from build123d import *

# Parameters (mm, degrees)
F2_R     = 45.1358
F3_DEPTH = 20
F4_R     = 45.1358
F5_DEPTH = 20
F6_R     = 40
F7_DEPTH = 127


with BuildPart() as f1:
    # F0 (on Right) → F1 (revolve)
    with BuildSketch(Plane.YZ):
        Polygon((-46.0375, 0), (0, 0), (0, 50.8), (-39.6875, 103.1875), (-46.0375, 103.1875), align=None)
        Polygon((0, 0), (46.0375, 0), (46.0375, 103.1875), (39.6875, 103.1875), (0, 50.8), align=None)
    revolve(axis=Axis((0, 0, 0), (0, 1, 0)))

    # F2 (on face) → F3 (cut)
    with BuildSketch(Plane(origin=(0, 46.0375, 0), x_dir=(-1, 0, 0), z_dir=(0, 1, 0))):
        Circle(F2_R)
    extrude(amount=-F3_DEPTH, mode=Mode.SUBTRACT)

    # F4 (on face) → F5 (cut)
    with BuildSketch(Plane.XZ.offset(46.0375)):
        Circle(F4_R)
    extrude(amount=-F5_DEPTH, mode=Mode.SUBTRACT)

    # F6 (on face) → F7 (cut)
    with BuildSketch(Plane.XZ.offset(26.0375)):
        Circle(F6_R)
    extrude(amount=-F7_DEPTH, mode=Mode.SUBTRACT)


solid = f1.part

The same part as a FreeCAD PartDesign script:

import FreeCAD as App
import Part
import Sketcher
Q = App.Units.Quantity


def add_polygon(sketch, points):
    """Adds a closed chain of lines whose ends are joined by coincident constraints."""
    first, n = sketch.GeometryCount, len(points)
    for a, b in zip(points, points[1:] + points[:1]):
        sketch.addGeometry(Part.LineSegment(App.Vector(*a, 0), App.Vector(*b, 0)), False)
    for i in range(n):
        sketch.addConstraint(Sketcher.Constraint("Coincident", first + i, 2, first + (i + 1) % n, 1))

doc = App.newDocument("Part")
body = doc.addObject("PartDesign::Body", "Body")

sketch1 = doc.addObject("Sketcher::SketchObject", "Sketch")
body.addObject(sketch1)
sketch1.AttachmentSupport = (doc.YZ_Plane, [""])
sketch1.MapMode = "FlatFace"
add_polygon(sketch1, [(-46, 0), (46, 0), (46, 103), (40, 103), (0, 51), (-40, 103), (-46, 103)])
sketch1.addConstraint([
    Sketcher.Constraint("Horizontal", 0),
    Sketcher.Constraint("Vertical", 1),
    Sketcher.Constraint("Horizontal", 2),
    Sketcher.Constraint("Horizontal", 5),
    Sketcher.Constraint("Vertical", 6),
    Sketcher.Constraint("Symmetric", 0, 2, 6, 2, -1, 1),
    Sketcher.Constraint("Symmetric", 2, 2, 4, 2, -2),
    Sketcher.Constraint("PointOnObject", 3, 2, -2),
    Sketcher.Constraint("DistanceY", -1, 1, 3, 2, Q("2 in")),
    Sketcher.Constraint("DistanceX", 2, 2, 2, 1, Q("0.25 in")),
    Sketcher.Constraint("DistanceX", 0, 1, 0, 2, Q("3.625 in")),
    Sketcher.Constraint("DistanceY", 1, 1, 1, 2, Q("4.0625 in")),
])
revolution = doc.addObject("PartDesign::Revolution", "Revolution")
body.addObject(revolution)
revolution.Profile = sketch1
revolution.ReferenceAxis = (sketch1, ["H_Axis"])
revolution.Angle = 360

sketch2 = doc.addObject("Sketcher::SketchObject", "Sketch001")
body.addObject(sketch2)
sketch2.AttachmentSupport = (doc.XZ_Plane, [""])
sketch2.MapMode = "FlatFace"
sketch2.AttachmentOffset = App.Placement(App.Vector(0, 0, -1.8125 * 25.4), App.Rotation())
sketch2.addGeometry(Part.Circle(App.Vector(0, 0, 0), App.Vector(0, 0, 1), 45), False)
sketch2.addConstraint([
    Sketcher.Constraint("Coincident", 0, 3, -1, 1),
    Sketcher.Constraint("Diameter", 0, Q("3.554 in")),
])
pocket1 = doc.addObject("PartDesign::Pocket", "Pocket")
body.addObject(pocket1)
pocket1.Profile = sketch2
pocket1.Length = 20
pocket1.Reversed = True

sketch3 = doc.addObject("Sketcher::SketchObject", "Sketch002")
body.addObject(sketch3)
sketch3.AttachmentSupport = (doc.XZ_Plane, [""])
sketch3.MapMode = "FlatFace"
sketch3.AttachmentOffset = App.Placement(App.Vector(0, 0, 1.8125 * 25.4), App.Rotation())
sketch3.addGeometry(Part.Circle(App.Vector(0, 0, 0), App.Vector(0, 0, 1), 45), False)
sketch3.addConstraint([
    Sketcher.Constraint("Coincident", 0, 3, -1, 1),
    Sketcher.Constraint("Diameter", 0, Q("3.554 in")),
])
pocket2 = doc.addObject("PartDesign::Pocket", "Pocket001")
body.addObject(pocket2)
pocket2.Profile = sketch3
pocket2.Length = 20

sketch4 = doc.addObject("Sketcher::SketchObject", "Sketch003")
body.addObject(sketch4)
sketch4.AttachmentSupport = (doc.XZ_Plane, [""])
sketch4.MapMode = "FlatFace"
sketch4.AttachmentOffset = App.Placement(App.Vector(0, 0, 26.0375), App.Rotation())
sketch4.addGeometry(Part.Circle(App.Vector(0, 0, 0), App.Vector(0, 0, 1), 40), False)
sketch4.addConstraint([
    Sketcher.Constraint("Coincident", 0, 3, -1, 1),
    Sketcher.Constraint("Diameter", 0, Q("80 mm")),
])
pocket3 = doc.addObject("PartDesign::Pocket", "Pocket002")
body.addObject(pocket3)
pocket3.Profile = sketch4
pocket3.Length = Q("5 in")

doc.recompute()
